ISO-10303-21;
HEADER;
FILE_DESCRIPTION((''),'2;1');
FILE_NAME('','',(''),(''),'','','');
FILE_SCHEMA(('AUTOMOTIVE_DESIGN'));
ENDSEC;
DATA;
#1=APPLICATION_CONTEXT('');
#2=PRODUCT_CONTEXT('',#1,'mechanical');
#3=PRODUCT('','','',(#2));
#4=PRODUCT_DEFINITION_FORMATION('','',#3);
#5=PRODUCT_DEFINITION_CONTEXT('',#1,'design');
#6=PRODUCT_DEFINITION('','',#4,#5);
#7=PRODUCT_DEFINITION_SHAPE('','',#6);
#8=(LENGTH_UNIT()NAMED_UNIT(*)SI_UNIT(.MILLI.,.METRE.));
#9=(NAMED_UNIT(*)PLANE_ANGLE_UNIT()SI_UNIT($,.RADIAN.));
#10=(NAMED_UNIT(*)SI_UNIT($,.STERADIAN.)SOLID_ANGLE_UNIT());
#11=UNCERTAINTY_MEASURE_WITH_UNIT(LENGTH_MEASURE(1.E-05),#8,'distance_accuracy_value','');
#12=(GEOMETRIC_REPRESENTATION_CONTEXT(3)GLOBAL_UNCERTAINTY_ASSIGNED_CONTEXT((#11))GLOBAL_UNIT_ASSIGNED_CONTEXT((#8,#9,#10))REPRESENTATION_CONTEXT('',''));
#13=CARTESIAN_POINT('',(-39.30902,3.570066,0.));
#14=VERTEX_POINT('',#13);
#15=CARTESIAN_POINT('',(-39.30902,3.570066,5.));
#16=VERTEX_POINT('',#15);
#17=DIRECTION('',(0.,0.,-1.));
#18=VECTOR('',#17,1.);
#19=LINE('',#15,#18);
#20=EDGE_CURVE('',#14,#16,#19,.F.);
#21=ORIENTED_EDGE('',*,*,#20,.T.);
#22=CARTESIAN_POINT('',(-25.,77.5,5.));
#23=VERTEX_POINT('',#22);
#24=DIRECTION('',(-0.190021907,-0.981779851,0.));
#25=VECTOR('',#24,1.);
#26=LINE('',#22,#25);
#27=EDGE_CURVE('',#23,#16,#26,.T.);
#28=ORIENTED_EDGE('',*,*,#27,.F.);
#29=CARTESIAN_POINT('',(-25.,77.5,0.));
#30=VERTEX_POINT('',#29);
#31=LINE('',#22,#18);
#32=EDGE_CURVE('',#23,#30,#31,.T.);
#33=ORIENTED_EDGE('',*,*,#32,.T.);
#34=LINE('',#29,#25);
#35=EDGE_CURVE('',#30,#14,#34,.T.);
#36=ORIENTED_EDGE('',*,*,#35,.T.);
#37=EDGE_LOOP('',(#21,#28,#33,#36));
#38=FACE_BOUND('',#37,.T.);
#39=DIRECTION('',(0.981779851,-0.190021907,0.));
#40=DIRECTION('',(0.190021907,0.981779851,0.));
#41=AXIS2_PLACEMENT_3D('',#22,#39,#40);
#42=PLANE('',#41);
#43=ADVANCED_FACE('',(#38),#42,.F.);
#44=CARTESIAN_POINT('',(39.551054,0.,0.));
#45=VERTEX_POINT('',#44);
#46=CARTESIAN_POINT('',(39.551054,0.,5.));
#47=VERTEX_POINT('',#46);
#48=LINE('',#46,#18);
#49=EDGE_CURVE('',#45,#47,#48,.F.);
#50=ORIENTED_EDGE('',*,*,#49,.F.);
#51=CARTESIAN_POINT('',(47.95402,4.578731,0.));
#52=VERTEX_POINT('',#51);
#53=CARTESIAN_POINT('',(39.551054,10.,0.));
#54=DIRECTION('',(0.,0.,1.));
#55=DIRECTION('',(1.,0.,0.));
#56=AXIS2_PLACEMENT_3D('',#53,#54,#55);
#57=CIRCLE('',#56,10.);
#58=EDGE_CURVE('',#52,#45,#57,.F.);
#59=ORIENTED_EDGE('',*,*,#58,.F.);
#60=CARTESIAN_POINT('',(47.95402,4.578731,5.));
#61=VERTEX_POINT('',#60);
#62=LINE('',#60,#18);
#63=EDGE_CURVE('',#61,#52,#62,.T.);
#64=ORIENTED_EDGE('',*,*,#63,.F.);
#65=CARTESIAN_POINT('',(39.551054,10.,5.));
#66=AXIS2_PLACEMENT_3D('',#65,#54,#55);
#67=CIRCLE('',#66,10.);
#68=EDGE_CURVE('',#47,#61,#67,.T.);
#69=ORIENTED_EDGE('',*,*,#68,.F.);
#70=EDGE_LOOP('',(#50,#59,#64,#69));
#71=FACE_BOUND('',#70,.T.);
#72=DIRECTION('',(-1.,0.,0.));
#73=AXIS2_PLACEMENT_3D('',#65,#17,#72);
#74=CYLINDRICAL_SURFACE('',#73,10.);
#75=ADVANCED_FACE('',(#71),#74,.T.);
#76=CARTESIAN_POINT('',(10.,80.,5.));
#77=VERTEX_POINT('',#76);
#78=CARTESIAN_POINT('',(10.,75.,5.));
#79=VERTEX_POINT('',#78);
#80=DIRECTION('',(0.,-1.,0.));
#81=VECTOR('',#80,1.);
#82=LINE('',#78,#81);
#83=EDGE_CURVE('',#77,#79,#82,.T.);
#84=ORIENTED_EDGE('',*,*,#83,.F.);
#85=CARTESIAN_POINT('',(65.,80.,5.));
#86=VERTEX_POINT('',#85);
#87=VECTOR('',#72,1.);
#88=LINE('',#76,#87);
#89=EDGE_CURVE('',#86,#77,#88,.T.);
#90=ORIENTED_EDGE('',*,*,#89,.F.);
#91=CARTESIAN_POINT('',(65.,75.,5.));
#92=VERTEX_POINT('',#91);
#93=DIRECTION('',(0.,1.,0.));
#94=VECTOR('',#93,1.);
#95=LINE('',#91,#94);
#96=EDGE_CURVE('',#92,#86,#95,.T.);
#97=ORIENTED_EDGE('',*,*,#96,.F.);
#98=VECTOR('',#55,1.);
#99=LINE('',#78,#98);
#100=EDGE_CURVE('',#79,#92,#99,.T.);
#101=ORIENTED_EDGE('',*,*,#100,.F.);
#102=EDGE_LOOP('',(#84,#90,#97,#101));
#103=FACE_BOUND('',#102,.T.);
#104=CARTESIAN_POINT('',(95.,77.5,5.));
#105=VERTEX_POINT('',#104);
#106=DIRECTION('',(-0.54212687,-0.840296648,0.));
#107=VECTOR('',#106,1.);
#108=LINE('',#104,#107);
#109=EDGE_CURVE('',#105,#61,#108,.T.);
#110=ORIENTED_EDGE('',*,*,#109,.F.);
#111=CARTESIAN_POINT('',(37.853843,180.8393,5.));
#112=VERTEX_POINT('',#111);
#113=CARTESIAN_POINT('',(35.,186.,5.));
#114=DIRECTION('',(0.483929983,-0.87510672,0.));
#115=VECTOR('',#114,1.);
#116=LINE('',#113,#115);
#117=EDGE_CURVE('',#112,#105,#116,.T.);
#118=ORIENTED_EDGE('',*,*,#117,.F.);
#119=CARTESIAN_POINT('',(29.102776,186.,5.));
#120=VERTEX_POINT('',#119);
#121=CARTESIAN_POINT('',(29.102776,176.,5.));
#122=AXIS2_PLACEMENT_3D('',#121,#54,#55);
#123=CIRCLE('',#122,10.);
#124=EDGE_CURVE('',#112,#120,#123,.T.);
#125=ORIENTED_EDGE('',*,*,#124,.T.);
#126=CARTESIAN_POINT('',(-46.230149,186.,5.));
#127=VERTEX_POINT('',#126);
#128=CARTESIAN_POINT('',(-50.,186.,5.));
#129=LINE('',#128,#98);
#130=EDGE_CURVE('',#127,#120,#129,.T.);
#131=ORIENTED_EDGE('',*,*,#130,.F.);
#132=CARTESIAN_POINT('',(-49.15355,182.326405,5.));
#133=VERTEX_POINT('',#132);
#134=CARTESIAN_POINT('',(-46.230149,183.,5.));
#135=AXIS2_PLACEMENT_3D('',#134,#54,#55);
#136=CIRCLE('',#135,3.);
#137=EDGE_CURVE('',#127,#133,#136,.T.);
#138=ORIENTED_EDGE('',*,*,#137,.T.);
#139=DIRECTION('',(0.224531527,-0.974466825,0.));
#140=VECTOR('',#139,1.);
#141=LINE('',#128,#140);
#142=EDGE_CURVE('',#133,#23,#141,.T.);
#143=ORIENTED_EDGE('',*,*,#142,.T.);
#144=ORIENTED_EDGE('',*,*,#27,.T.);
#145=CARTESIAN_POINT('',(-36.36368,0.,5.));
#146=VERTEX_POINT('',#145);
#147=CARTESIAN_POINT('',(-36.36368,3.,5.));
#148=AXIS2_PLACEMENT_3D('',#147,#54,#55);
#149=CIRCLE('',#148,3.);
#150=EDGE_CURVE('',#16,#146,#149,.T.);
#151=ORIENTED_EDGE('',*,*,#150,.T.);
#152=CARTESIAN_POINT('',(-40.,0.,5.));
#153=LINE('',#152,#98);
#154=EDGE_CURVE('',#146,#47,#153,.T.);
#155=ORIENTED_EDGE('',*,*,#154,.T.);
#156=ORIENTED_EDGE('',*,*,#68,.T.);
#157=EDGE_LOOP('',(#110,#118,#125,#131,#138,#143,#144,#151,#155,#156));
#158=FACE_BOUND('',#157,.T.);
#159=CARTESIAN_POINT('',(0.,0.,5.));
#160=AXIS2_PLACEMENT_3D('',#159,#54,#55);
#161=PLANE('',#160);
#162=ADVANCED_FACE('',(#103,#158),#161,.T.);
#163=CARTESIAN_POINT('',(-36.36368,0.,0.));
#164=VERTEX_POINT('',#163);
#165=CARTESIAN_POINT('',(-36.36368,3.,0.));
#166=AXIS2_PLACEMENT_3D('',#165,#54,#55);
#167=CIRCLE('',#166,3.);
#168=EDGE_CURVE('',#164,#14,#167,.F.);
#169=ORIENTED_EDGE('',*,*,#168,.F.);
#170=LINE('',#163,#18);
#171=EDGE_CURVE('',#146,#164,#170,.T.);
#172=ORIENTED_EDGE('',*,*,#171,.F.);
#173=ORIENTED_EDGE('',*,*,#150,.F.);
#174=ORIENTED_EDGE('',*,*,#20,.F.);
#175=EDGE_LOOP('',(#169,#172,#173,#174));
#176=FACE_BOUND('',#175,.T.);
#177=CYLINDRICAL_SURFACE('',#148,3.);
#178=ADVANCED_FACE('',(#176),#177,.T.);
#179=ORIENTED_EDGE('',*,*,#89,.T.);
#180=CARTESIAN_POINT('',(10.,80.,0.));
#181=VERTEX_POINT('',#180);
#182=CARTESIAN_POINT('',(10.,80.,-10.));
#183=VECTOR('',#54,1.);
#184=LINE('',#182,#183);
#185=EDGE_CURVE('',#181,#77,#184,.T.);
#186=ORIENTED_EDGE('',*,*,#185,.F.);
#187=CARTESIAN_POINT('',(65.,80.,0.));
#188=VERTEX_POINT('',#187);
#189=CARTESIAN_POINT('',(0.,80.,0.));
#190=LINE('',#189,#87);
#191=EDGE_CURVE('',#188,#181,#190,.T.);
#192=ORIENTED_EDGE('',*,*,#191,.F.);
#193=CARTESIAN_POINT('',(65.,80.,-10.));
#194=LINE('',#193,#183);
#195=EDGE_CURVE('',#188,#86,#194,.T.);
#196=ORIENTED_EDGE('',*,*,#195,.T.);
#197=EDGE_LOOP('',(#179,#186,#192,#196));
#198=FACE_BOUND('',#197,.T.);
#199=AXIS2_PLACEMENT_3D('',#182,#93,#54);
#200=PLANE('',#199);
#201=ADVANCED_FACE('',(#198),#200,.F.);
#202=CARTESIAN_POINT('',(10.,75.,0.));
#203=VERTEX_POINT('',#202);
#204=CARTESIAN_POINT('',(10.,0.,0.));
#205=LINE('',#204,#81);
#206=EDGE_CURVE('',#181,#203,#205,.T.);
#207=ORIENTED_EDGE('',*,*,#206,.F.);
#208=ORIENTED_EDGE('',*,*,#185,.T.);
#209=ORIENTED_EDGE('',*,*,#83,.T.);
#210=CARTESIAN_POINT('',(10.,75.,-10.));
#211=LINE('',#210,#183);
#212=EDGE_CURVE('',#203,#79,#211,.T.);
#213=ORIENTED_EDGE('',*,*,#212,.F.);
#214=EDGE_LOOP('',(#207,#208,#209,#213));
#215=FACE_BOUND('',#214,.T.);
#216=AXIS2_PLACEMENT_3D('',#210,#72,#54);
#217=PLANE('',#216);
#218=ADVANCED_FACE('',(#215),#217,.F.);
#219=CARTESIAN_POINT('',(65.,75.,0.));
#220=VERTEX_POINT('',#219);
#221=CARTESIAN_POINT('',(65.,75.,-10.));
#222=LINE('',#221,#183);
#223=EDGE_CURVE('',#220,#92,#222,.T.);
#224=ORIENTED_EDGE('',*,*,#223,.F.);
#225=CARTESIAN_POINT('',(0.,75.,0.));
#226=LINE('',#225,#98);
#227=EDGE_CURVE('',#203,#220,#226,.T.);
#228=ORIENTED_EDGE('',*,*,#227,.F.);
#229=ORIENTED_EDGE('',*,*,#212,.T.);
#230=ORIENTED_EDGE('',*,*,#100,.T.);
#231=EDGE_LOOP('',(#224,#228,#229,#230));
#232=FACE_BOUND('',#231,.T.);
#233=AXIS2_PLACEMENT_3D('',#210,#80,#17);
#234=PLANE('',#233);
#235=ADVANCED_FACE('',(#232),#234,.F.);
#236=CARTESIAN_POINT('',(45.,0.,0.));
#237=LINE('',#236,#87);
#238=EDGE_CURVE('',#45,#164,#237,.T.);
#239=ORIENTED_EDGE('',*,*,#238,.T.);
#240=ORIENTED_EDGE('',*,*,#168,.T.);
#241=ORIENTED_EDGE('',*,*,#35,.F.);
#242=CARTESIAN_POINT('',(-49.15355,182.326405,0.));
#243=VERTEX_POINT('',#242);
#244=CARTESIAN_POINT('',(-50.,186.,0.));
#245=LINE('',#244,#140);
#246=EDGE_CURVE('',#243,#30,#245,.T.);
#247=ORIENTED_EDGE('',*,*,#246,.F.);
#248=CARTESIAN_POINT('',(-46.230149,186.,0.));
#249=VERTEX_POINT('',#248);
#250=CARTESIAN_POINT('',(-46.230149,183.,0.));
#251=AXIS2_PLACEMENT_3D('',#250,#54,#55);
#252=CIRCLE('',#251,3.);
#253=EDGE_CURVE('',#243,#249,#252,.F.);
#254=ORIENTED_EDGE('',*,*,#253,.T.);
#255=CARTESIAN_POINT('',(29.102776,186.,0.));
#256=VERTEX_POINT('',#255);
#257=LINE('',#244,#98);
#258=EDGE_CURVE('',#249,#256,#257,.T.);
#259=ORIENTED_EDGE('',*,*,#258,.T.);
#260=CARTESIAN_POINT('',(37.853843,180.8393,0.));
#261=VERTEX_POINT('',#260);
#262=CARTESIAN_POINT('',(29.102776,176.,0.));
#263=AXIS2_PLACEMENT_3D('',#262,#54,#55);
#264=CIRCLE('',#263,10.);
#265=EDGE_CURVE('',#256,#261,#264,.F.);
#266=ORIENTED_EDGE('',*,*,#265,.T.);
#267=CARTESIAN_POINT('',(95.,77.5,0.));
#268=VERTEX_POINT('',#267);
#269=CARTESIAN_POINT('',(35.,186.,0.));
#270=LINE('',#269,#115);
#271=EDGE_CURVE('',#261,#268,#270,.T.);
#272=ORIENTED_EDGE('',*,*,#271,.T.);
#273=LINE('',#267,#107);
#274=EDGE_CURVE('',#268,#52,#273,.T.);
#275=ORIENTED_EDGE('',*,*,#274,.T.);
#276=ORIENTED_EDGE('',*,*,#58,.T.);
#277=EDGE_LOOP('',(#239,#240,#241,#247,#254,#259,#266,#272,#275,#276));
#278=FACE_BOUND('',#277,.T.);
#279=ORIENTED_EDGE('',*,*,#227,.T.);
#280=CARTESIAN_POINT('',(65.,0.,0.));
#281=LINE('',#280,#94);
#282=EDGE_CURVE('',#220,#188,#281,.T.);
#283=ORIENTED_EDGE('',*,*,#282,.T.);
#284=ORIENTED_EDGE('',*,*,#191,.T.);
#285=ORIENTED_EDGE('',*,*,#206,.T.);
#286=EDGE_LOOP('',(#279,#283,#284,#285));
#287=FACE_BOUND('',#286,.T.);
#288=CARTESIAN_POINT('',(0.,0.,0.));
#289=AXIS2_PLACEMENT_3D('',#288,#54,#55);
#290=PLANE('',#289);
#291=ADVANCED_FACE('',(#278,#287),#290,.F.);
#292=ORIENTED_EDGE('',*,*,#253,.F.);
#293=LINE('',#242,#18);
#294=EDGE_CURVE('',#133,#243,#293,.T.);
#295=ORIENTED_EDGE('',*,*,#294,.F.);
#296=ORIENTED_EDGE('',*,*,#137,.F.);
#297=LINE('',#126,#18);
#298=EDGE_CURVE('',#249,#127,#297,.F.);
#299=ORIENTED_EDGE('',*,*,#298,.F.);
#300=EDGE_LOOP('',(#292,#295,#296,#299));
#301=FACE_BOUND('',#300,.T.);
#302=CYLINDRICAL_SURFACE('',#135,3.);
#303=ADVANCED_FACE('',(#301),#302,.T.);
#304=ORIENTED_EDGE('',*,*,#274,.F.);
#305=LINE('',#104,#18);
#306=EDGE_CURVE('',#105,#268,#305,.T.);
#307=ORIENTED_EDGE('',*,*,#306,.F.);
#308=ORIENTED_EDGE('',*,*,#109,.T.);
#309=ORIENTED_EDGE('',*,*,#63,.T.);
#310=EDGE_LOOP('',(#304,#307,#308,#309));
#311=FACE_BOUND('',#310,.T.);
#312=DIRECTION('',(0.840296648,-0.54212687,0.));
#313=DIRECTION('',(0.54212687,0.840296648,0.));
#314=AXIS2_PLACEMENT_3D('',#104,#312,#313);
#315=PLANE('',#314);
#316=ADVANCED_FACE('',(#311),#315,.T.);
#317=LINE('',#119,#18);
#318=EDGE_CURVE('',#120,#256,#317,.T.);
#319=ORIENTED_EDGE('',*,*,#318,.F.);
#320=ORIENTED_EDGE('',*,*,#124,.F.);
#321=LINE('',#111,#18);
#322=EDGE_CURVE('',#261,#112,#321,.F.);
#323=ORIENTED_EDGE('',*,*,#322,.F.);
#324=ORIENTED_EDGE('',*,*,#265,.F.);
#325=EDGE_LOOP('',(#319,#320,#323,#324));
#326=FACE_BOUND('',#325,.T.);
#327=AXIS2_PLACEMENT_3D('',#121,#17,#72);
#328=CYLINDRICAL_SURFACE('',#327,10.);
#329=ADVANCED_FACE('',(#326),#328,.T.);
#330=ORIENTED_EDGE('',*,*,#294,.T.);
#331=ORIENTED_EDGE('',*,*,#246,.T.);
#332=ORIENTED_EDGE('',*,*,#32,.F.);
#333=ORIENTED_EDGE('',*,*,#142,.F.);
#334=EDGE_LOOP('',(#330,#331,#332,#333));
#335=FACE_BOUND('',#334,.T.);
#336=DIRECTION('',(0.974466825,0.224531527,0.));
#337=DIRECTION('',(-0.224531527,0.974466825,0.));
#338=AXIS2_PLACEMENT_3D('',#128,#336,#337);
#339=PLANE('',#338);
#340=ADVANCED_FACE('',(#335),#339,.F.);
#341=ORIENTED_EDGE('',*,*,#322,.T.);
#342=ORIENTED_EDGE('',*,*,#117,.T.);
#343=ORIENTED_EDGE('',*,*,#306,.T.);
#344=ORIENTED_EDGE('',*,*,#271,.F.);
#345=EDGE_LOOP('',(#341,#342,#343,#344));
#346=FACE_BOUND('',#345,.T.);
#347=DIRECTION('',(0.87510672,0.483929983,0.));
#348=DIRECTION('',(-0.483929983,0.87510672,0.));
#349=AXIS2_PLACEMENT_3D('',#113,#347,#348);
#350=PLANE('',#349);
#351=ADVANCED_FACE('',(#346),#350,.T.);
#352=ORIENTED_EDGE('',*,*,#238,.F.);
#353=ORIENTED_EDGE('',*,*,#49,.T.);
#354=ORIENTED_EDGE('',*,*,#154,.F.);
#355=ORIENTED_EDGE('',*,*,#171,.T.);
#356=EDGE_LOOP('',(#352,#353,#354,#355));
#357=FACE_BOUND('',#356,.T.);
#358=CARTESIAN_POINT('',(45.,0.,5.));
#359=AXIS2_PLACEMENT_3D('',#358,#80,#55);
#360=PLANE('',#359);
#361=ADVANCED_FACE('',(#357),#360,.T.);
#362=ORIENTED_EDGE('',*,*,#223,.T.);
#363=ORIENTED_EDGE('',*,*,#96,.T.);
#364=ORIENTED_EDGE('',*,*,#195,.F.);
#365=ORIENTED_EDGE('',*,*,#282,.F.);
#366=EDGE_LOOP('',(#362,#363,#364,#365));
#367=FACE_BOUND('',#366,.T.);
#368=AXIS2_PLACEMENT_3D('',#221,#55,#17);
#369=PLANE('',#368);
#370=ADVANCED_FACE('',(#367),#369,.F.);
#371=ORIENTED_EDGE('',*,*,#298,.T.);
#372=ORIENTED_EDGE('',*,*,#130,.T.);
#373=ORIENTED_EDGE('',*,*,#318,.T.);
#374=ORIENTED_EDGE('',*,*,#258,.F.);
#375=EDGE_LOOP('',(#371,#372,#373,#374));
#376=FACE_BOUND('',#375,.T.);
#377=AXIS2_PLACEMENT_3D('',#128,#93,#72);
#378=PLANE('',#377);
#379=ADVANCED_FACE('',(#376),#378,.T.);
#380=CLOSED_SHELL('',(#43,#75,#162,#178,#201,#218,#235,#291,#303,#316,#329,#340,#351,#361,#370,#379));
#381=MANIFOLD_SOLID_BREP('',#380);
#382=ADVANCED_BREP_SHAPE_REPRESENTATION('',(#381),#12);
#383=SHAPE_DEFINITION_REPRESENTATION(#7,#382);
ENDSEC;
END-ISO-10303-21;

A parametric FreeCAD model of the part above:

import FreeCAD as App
import Part
import Sketcher

V = App.Vector


def edges_at(feature, points):
    """Names of the edges that pass closest to the given points."""
    edges = feature.Shape.Edges
    near = lambda p: min(range(len(edges)), key=lambda i: edges[i].distToShape(Part.Vertex(*p))[0])
    return sorted({f"Edge{near(p) + 1}" for p in points})


def add_polygon(sketch, points):
    """Adds a closed chain of lines whose ends are joined by coincident constraints."""
    first, n = sketch.GeometryCount, len(points)
    for a, b in zip(points, points[1:] + points[:1]):
        sketch.addGeometry(Part.LineSegment(App.Vector(*a, 0), App.Vector(*b, 0)), False)
    for i in range(n):
        sketch.addConstraint(Sketcher.Constraint("Coincident", first + i, 2, first + (i + 1) % n, 1))

doc = App.newDocument("Part")
params = doc.addObject("Spreadsheet::Sheet", "Params")
for row, (alias, value) in enumerate([
    ("sketch1_width", "85 mm"),
    ("pad1_length", "5 mm"),
    ("sketch2_width", "55 mm"),
    ("sketch2_height", "5 mm"),
    ("pocket1_length", "15 mm"),
    ("fillet_radius", "10 mm"),
    ("fillet2_radius", "3 mm"),
], start=1):
    params.set(f"A{row}", alias)
    params.set(f"B{row}", "=" + value)
    params.setAlias(f"B{row}", alias)

body = doc.addObject("PartDesign::Body", "Body")

# Sketch on XY plane
sketch1 = body.newObject("Sketcher::SketchObject", "Sketch")
sketch1.AttachmentSupport = (doc.getObject("XY_Plane"), [""])
sketch1.MapMode = "FlatFace"
add_polygon(sketch1, [(35, 186), (-50, 186), (-25, 78), (-40, 0), (45, 0), (95, 78)])  # lines 0-5
sketch1.addConstraint([
    Sketcher.Constraint("Horizontal", 0),
    Sketcher.Constraint("Horizontal", 3),
    Sketcher.Constraint("PointOnObject", 2, 2, -1),
    Sketcher.Constraint("Horizontal", 1, 2, 4, 2),
    Sketcher.Constraint("Equal", 0, 3),
    Sketcher.Constraint("DistanceX", 0, 2, 0, 1, 85.0),
    Sketcher.Constraint("DistanceX", 0, 2, -1, 1, 50.0),
    Sketcher.Constraint("DistanceY", -1, 1, 0, 2, 186.0),
    Sketcher.Constraint("DistanceX", 1, 2, -1, 1, 25.0),
    Sketcher.Constraint("DistanceX", 2, 2, -1, 1, 40.0),
    Sketcher.Constraint("DistanceX", -1, 1, 4, 2, 95.0),
    Sketcher.Constraint("DistanceY", -1, 1, 1, 2, 77.5),
])
sketch1.setExpression("Constraints[11]", "Params.sketch1_width")
pad1 = body.newObject("PartDesign::Pad", "Pad")
pad1.Profile = sketch1
pad1.setExpression("Length", "Params.pad1_length")

# Sketch on XY plane
sketch2 = body.newObject("Sketcher::SketchObject", "Sketch001")
sketch2.AttachmentSupport = (doc.getObject("XY_Plane"), [""])
sketch2.MapMode = "FlatFace"
sketch2.AttachmentOffset = App.Placement(V(0, 0, 5), App.Rotation())
add_polygon(sketch2, [(10, 80), (10, 75), (65, 75), (65, 80)])  # lines 0-3
sketch2.addConstraint([
    Sketcher.Constraint("Vertical", 0),
    Sketcher.Constraint("Horizontal", 1),
    Sketcher.Constraint("Vertical", 2),
    Sketcher.Constraint("Horizontal", 3),
    Sketcher.Constraint("DistanceX", 1, 1, 1, 2, 55.0),
    Sketcher.Constraint("DistanceY", 0, 2, 0, 1, 5.0),
    Sketcher.Constraint("DistanceX", -1, 1, 0, 2, 10.0),
    Sketcher.Constraint("DistanceY", -1, 1, 0, 2, 75.0),
])
sketch2.setExpression("Constraints[8]", "Params.sketch2_width")
sketch2.setExpression("Constraints[9]", "Params.sketch2_height")
pocket1 = body.newObject("PartDesign::Pocket", "Pocket")
pocket1.Profile = sketch2
pocket1.setExpression("Length", "Params.pocket1_length")
doc.recompute()

fillet = body.newObject("PartDesign::Fillet", "Fillet")
fillet.Base = (pocket1, edges_at(pocket1, [(35, 186, 2.5), (45, 0, 2.5)]))
fillet.setExpression("Radius", "Params.fillet_radius")
doc.recompute()

fillet2 = body.newObject("PartDesign::Fillet", "Fillet001")
fillet2.Base = (fillet, edges_at(fillet, [(-50, 186, 2.5), (-40, 0, 2.5)]))
fillet2.setExpression("Radius", "Params.fillet2_radius")

doc.recompute()
